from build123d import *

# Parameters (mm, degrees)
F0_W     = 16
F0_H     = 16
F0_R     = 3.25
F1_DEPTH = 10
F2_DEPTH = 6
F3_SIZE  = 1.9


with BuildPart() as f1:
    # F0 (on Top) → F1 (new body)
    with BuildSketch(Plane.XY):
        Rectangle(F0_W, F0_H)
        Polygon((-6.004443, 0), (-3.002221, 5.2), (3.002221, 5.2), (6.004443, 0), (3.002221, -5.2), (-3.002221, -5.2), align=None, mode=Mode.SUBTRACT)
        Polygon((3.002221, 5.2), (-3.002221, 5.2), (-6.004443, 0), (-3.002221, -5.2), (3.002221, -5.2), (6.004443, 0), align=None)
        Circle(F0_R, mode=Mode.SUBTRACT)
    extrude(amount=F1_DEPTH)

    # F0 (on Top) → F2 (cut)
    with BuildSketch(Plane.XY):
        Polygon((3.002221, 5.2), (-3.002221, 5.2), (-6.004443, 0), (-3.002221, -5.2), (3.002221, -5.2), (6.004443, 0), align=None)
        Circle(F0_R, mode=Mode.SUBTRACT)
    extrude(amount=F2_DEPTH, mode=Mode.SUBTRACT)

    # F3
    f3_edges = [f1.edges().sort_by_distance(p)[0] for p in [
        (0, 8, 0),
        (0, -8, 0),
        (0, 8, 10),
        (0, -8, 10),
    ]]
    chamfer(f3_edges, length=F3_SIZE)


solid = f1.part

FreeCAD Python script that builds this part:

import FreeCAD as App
import Part
import Sketcher

V = App.Vector
Q = App.Units.Quantity


def edges_at(feature, points):
    """Names of the edges that pass closest to the given points."""
    edges = feature.Shape.Edges
    near = lambda p: min(range(len(edges)), key=lambda i: edges[i].distToShape(Part.Vertex(*p))[0])
    return sorted({f"Edge{near(p) + 1}" for p in points})

doc = App.newDocument("Part")
params = doc.addObject("Spreadsheet::Sheet", "Params")
for row, (alias, value) in enumerate([
    ("sketch1_diameter", "6.5 mm"),
    ("sketch1_width", "16 mm"),
    ("pad1_length", "10 mm"),
    ("sketch2_diameter", "6.5 mm"),
    ("pocket1_length", "6 mm"),
    ("chamfer_size", "1.9 mm"),
], start=1):
    params.set(f"A{row}", alias)
    params.set(f"B{row}", "=" + value)
    params.setAlias(f"B{row}", alias)

body = doc.addObject("PartDesign::Body", "Body")

# Sketch on XY plane
sketch1 = doc.addObject("Sketcher::SketchObject", "Sketch")
body.addObject(sketch1)
sketch1.AttachmentSupport = (doc.XY_Plane, [""])
sketch1.MapMode = "FlatFace"
sketch1.addGeometry([
    Part.LineSegment(V(-8, 8, 0), V(-8, -8, 0)),  # 0
    Part.LineSegment(V(-8, -8, 0), V(8, -8, 0)),  # 1
    Part.LineSegment(V(8, -8, 0), V(8, 8, 0)),  # 2
    Part.LineSegment(V(8, 8, 0), V(-8, 8, 0)),  # 3
    Part.Circle(V(0, 0, 0), V(0, 0, 1), 3.25),  # 4
], False)
sketch1.addConstraint([
    Sketcher.Constraint("Coincident", 0, 2, 1, 1),
    Sketcher.Constraint("Coincident", 1, 2, 2, 1),
    Sketcher.Constraint("Coincident", 2, 2, 3, 1),
    Sketcher.Constraint("Coincident", 3, 2, 0, 1),
    Sketcher.Constraint("Vertical", 0),
    Sketcher.Constraint("Horizontal", 1),
    Sketcher.Constraint("Vertical", 2),
    Sketcher.Constraint("Horizontal", 3),
    Sketcher.Constraint("Coincident", 4, 3, -1, 1),
    Sketcher.Constraint("Symmetric", 0, 2, 2, 2, -1, 1),
    Sketcher.Constraint("Equal", 3, 0),
    Sketcher.Constraint("Diameter", 4, Q("6.5 mm")),
    Sketcher.Constraint("DistanceX", 1, 1, 1, 2, Q("16 mm")),
])
sketch1.setExpression("Constraints[11]", "Params.sketch1_diameter")
sketch1.setExpression("Constraints[12]", "Params.sketch1_width")
pad1 = doc.addObject("PartDesign::Pad", "Pad")
body.addObject(pad1)
pad1.Profile = sketch1
pad1.setExpression("Length", "Params.pad1_length")

# Sketch on XY plane
sketch2 = doc.addObject("Sketcher::SketchObject", "Sketch001")
body.addObject(sketch2)
sketch2.AttachmentSupport = (doc.XY_Plane, [""])
sketch2.MapMode = "FlatFace"
sketch2.addGeometry([
    Part.LineSegment(V(3.002221, 5.2, 0), V(-3.002221, 5.2, 0)),  # 0
    Part.LineSegment(V(-3.002221, 5.2, 0), V(-6.004443, 0, 0)),  # 1
    Part.LineSegment(V(-6.004443, 0, 0), V(-3.002221, -5.2, 0)),  # 2
    Part.LineSegment(V(-3.002221, -5.2, 0), V(3.002221, -5.2, 0)),  # 3
    Part.LineSegment(V(3.002221, -5.2, 0), V(6.004443, 0, 0)),  # 4
    Part.LineSegment(V(6.004443, 0, 0), V(3.002221, 5.2, 0)),  # 5
    Part.Circle(V(0, 0, 0), V(0, 0, 1), 3.25),  # 6
], False)
sketch2.addConstraint([
    Sketcher.Constraint("Coincident", 0, 2, 1, 1),
    Sketcher.Constraint("Coincident", 1, 2, 2, 1),
    Sketcher.Constraint("Coincident", 2, 2, 3, 1),
    Sketcher.Constraint("Coincident", 3, 2, 4, 1),
    Sketcher.Constraint("Coincident", 4, 2, 5, 1),
    Sketcher.Constraint("Coincident", 5, 2, 0, 1),
    Sketcher.Constraint("Horizontal", 0),
    Sketcher.Constraint("Horizontal", 3),
    Sketcher.Constraint("Coincident", 6, 3, -1, 1),
    Sketcher.Constraint("Symmetric", 0, 2, 3, 2, -1, 1),
    Sketcher.Constraint("Symmetric", 1, 2, 4, 2, -1, 1),
    Sketcher.Constraint("PointOnObject", 1, 2, -1),
    Sketcher.Constraint("Parallel", 2, 5),
    Sketcher.Constraint("Vertical", 0, 2, 2, 2),
    Sketcher.Constraint("Diameter", 6, Q("6.5 mm")),
    Sketcher.Constraint("Angle", 1, Q("-120.000005 deg")),
    Sketcher.Constraint("DistanceY", -1, 1, 0, 2, Q("5.2 mm")),
    Sketcher.Constraint("DistanceX", 0, 2, 0, 1, Q("6.004442 mm")),
])
sketch2.setExpression("Constraints[14]", "Params.sketch2_diameter")
pocket1 = doc.addObject("PartDesign::Pocket", "Pocket")
body.addObject(pocket1)
pocket1.Profile = sketch2
pocket1.setExpression("Length", "Params.pocket1_length")
pocket1.Reversed = True
doc.recompute()

chamfer = doc.addObject("PartDesign::Chamfer", "Chamfer")
body.addObject(chamfer)
chamfer.Base = (pocket1, edges_at(pocket1, [
    (0, 8, 0),
    (0, -8, 0),
    (0, 8, 10),
    (0, -8, 10),
]))
chamfer.setExpression("Size", "Params.chamfer_size")

doc.recompute()
